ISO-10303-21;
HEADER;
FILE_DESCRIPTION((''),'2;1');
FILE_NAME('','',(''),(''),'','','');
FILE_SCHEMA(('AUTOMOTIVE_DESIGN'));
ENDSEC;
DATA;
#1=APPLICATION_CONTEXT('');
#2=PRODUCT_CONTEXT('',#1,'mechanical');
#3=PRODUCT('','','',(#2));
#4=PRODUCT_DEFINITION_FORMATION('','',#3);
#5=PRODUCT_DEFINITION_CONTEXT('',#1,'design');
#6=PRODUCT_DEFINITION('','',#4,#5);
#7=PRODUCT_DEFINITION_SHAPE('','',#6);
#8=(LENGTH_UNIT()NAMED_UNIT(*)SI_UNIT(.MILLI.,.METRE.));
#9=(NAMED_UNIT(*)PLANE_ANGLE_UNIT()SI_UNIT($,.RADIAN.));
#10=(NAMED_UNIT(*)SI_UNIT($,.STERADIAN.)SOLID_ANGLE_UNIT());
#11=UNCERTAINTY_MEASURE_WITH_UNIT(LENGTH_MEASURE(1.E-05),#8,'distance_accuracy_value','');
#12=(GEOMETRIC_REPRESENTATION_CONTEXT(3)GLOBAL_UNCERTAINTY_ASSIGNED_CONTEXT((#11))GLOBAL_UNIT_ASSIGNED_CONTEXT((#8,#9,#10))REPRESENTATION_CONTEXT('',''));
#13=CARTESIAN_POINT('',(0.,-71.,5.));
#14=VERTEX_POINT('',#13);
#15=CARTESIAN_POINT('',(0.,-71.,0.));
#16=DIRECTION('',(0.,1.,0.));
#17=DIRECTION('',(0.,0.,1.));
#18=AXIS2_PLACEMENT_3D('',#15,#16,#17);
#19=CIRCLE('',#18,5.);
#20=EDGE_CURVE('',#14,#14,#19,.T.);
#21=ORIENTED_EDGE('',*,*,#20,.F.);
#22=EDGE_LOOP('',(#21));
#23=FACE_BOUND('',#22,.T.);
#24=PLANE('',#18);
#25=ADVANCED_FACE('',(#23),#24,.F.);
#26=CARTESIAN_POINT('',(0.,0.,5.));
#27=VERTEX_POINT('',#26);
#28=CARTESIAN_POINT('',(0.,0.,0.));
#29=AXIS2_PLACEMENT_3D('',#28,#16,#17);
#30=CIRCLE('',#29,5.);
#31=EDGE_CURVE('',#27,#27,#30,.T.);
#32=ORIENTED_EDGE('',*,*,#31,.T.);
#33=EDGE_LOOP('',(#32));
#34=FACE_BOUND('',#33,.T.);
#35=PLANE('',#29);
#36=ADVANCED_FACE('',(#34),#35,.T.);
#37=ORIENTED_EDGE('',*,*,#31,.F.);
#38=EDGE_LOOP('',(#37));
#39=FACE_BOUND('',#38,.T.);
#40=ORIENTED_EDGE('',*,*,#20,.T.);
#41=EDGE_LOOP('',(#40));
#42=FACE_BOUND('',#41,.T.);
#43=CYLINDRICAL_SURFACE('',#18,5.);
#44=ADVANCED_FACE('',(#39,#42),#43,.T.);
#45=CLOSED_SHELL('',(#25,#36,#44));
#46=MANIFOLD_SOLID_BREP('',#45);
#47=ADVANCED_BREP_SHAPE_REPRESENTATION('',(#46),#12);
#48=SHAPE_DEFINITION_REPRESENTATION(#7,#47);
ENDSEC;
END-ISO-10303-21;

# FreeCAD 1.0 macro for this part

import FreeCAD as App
import Part
import Sketcher

V = App.Vector

doc = App.newDocument("Part")
body = doc.addObject("PartDesign::Body", "Body")

sketch1 = body.newObject("Sketcher::SketchObject", "Sketch")
sketch1.AttachmentSupport = (doc.getObject("XZ_Plane"), [""])
sketch1.MapMode = "FlatFace"
sketch1.addGeometry(Part.Circle(V(0, 0, 0), V(0, 0, 1), 5), False)
sketch1.addConstraint([
    Sketcher.Constraint("Coincident", 0, 3, -1, 1),
    Sketcher.Constraint("Diameter", 0, 10.0),
])
pad1 = body.newObject("PartDesign::Pad", "Pad")
pad1.Profile = sketch1
pad1.Length = 71

doc.recompute()
